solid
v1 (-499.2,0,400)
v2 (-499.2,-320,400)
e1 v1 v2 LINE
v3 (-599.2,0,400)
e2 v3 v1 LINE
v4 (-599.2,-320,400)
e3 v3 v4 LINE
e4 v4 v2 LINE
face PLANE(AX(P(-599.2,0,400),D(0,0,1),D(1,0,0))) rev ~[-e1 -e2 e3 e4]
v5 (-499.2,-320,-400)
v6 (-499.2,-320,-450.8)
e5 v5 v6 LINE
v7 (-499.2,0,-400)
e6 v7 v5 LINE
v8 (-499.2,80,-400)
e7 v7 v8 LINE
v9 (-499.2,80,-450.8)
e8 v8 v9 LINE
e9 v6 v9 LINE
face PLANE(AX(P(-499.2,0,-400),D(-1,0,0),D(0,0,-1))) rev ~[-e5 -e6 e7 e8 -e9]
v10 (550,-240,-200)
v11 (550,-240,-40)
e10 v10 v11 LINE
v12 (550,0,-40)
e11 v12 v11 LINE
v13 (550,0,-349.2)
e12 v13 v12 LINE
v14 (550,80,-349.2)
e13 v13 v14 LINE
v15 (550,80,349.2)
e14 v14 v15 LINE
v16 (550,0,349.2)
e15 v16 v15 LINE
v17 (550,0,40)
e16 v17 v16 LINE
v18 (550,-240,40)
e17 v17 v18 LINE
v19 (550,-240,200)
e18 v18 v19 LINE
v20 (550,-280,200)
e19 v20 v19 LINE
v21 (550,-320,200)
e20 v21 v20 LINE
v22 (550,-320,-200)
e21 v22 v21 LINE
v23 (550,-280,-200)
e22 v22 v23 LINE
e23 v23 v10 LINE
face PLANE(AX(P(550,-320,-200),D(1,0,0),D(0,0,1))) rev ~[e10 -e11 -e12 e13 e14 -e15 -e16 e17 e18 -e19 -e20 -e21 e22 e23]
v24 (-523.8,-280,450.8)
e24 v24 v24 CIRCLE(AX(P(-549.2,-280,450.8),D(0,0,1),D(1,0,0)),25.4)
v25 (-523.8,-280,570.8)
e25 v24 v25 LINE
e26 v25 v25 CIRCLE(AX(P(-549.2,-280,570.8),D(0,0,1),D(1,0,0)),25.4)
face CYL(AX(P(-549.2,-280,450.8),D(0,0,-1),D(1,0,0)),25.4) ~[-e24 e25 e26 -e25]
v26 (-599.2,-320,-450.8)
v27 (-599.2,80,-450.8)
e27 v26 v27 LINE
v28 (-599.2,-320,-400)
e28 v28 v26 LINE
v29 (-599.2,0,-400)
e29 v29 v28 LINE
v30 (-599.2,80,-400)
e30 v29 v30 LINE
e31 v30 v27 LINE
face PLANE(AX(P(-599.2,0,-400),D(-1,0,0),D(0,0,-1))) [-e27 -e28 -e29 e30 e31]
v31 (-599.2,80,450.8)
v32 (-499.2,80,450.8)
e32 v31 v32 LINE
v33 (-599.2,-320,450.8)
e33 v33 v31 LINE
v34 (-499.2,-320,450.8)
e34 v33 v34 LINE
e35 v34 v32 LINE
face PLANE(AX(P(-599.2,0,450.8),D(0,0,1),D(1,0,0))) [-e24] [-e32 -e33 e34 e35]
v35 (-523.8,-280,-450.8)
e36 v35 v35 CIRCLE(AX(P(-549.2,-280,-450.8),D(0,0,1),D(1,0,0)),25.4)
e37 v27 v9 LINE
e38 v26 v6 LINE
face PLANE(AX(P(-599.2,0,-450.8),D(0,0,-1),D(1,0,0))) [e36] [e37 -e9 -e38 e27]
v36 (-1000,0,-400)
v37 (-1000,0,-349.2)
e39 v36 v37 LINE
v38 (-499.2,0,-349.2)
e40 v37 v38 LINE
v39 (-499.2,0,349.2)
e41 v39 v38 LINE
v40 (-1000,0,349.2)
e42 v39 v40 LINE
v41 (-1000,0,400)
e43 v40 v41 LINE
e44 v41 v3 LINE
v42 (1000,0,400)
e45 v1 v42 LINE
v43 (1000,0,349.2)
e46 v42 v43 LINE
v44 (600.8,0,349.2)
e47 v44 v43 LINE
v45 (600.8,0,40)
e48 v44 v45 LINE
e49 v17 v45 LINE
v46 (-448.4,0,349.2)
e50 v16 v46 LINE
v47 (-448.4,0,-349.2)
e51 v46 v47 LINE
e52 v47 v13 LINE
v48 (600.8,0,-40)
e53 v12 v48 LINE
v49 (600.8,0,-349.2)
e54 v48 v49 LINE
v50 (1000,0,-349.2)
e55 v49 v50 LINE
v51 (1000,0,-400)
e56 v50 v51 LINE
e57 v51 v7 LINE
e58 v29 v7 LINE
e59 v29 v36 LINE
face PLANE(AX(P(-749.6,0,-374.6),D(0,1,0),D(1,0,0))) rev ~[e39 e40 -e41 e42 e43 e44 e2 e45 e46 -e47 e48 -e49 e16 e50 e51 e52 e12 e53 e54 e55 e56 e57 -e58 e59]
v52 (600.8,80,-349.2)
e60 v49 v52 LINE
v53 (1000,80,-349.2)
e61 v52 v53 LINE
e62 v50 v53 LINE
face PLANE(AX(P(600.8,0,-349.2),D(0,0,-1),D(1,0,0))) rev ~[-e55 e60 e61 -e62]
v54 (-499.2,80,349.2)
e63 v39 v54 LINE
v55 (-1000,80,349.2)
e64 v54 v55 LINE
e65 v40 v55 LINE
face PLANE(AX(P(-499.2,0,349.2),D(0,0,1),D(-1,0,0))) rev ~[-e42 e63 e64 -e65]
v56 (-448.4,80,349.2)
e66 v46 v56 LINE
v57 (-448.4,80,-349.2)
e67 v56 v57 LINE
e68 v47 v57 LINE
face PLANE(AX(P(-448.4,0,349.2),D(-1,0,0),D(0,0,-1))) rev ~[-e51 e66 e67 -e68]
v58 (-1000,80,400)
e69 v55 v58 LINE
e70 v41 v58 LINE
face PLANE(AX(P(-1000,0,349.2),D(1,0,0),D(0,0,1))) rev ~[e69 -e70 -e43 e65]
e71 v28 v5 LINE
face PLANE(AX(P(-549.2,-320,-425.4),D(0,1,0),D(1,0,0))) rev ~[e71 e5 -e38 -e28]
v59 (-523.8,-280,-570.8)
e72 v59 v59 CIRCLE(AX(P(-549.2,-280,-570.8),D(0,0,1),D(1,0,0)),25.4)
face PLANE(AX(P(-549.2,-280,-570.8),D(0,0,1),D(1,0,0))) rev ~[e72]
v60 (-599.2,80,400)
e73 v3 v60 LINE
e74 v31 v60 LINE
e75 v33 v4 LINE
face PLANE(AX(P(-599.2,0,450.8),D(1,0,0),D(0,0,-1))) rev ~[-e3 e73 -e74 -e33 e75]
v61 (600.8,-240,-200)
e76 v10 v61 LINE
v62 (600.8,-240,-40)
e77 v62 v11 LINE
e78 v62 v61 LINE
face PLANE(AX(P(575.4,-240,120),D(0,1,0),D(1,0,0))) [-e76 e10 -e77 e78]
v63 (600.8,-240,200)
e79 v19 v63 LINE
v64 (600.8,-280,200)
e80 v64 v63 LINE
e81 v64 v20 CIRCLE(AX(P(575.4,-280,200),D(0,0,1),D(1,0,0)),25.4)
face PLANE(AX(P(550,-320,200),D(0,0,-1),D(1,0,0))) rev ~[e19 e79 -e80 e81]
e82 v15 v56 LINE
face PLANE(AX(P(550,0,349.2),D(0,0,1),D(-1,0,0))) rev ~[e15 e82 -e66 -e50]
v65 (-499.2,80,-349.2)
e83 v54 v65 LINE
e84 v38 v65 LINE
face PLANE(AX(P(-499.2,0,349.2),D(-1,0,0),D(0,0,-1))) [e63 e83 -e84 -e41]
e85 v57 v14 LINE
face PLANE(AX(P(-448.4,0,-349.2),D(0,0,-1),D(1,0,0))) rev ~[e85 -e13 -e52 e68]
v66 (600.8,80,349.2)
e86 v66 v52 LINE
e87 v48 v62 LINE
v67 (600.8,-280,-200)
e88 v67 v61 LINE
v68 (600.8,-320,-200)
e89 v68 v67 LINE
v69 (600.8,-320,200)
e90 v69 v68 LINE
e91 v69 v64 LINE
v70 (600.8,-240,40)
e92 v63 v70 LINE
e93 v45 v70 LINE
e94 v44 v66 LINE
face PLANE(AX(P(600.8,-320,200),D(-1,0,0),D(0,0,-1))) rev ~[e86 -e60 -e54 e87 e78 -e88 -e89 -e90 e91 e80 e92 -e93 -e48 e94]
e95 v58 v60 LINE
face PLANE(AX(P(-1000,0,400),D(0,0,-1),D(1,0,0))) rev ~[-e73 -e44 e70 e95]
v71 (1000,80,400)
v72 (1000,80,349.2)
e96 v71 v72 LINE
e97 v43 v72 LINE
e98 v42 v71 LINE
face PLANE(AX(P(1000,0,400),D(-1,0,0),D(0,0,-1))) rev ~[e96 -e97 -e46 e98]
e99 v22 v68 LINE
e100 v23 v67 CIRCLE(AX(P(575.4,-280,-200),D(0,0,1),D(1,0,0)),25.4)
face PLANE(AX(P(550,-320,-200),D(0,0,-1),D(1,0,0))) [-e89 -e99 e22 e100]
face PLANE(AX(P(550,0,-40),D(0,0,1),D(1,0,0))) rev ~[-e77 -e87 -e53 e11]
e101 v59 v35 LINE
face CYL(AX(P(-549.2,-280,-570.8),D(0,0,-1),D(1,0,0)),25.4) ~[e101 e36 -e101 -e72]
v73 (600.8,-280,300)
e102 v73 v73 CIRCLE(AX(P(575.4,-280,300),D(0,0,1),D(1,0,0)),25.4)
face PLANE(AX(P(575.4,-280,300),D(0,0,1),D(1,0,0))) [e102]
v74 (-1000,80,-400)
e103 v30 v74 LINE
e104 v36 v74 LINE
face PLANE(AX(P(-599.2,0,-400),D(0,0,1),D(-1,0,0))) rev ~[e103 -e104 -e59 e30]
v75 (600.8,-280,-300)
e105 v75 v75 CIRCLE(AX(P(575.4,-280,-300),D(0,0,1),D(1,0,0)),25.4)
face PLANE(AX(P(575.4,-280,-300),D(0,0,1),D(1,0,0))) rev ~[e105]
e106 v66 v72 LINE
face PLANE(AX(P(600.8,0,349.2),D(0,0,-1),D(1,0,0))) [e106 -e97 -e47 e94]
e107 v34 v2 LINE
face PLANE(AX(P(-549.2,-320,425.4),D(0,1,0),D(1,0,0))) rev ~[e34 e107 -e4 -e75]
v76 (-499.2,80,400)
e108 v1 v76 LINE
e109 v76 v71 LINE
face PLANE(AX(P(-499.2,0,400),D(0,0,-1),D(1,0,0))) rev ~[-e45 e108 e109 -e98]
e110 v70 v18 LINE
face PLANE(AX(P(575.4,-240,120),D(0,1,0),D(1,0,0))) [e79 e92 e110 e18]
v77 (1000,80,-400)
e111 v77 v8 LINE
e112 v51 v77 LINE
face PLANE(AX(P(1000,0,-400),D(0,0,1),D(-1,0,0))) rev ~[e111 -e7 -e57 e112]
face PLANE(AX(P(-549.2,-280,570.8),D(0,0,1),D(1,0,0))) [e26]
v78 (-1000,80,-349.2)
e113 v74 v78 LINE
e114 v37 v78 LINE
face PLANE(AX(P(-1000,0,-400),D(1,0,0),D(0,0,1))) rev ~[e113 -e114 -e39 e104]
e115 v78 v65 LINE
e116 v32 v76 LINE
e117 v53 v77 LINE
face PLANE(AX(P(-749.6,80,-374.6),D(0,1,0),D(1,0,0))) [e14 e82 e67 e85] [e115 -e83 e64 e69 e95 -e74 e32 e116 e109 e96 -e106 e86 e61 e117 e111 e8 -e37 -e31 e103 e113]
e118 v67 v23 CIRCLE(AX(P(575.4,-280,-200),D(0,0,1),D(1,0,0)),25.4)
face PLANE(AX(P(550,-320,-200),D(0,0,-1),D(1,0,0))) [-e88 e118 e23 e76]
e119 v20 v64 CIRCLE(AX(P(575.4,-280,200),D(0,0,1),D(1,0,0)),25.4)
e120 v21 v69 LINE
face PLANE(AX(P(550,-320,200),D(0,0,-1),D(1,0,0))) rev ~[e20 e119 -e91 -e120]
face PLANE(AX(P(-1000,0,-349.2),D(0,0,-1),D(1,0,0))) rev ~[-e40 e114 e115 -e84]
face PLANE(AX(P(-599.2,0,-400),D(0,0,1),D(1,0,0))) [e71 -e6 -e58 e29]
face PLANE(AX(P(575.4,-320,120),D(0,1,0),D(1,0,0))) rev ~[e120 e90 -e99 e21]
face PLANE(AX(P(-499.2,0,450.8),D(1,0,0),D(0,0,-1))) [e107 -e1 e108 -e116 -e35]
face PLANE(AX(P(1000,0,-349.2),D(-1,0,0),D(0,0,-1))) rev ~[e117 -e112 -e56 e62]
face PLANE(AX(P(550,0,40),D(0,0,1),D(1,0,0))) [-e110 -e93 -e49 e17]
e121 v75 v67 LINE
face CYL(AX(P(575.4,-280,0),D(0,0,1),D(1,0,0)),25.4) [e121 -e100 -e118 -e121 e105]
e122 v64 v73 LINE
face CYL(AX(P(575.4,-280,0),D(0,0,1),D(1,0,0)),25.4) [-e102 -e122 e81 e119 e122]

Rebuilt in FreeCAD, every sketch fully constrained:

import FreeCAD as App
import Part
import Sketcher

V = App.Vector
Q = App.Units.Quantity


def add_polygon(sketch, points):
    """Adds a closed chain of lines whose ends are joined by coincident constraints."""
    first, n = sketch.GeometryCount, len(points)
    for a, b in zip(points, points[1:] + points[:1]):
        sketch.addGeometry(Part.LineSegment(App.Vector(*a, 0), App.Vector(*b, 0)), False)
    for i in range(n):
        sketch.addConstraint(Sketcher.Constraint("Coincident", first + i, 2, first + (i + 1) % n, 1))

doc = App.newDocument("Part")
body = doc.addObject("PartDesign::Body", "Body")

sketch1 = body.newObject("Sketcher::SketchObject", "Sketch")
sketch1.AttachmentSupport = (doc.getObject("XZ_Plane"), [""])
sketch1.MapMode = "FlatFace"
add_polygon(sketch1, [(-1000, -400), (-1000, -349.2), (-499.2, -349.2), (-499.2, 349.2), (-1000, 349.2), (-1000, 400), (-599.2, 400), (-599.2, 450.8), (-499.2, 450.8), (-499.2, 400), (1000, 400), (1000, 349.2), (600.8, 349.2), (600.8, -349.2), (1000, -349.2), (1000, -400), (-499.2, -400), (-499.2, -450.8), (-599.2, -450.8), (-599.2, -400)])
add_polygon(sketch1, [(-448.4, -349.2), (550, -349.2), (550, 349.2), (-448.4, 349.2)])
sketch1.addConstraint(Sketcher.Constraint("Vertical", 0))
sketch1.addConstraint(Sketcher.Constraint("Horizontal", 1))
sketch1.addConstraint(Sketcher.Constraint("Vertical", 2))
sketch1.addConstraint(Sketcher.Constraint("Horizontal", 3))
sketch1.addConstraint(Sketcher.Constraint("Vertical", 4))
sketch1.addConstraint(Sketcher.Constraint("Horizontal", 5))
sketch1.addConstraint(Sketcher.Constraint("Vertical", 6))
sketch1.addConstraint(Sketcher.Constraint("Horizontal", 7))
sketch1.addConstraint(Sketcher.Constraint("Vertical", 8))
sketch1.addConstraint(Sketcher.Constraint("Horizontal", 9))
sketch1.addConstraint(Sketcher.Constraint("Vertical", 10))
sketch1.addConstraint(Sketcher.Constraint("Horizontal", 11))
sketch1.addConstraint(Sketcher.Constraint("Vertical", 12))
sketch1.addConstraint(Sketcher.Constraint("Horizontal", 13))
sketch1.addConstraint(Sketcher.Constraint("Vertical", 14))
sketch1.addConstraint(Sketcher.Constraint("Horizontal", 15))
sketch1.addConstraint(Sketcher.Constraint("Vertical", 16))
sketch1.addConstraint(Sketcher.Constraint("Horizontal", 17))
sketch1.addConstraint(Sketcher.Constraint("Vertical", 18))
sketch1.addConstraint(Sketcher.Constraint("Horizontal", 19))
sketch1.addConstraint(Sketcher.Constraint("Horizontal", 20))
sketch1.addConstraint(Sketcher.Constraint("Vertical", 21))
sketch1.addConstraint(Sketcher.Constraint("Horizontal", 22))
sketch1.addConstraint(Sketcher.Constraint("Vertical", 23))
sketch1.addConstraint(Sketcher.Constraint("Symmetric", 0, 2, 10, 2, -1, 1))
sketch1.addConstraint(Sketcher.Constraint("Symmetric", 3, 2, 13, 2, -1, 1))
sketch1.addConstraint(Sketcher.Constraint("Symmetric", 4, 2, 9, 2, -2))
sketch1.addConstraint(Sketcher.Constraint("Symmetric", 8, 2, 15, 2, -1))
sketch1.addConstraint(Sketcher.Constraint("Symmetric", 6, 2, 17, 2, -1))
sketch1.addConstraint(Sketcher.Constraint("Horizontal", 3, 2, 10, 2))
sketch1.addConstraint(Sketcher.Constraint("Horizontal", 15, 2, 18, 2))
sketch1.addConstraint(Sketcher.Constraint("Horizontal", 13, 2, 20, 2))
sketch1.addConstraint(Sketcher.Constraint("Horizontal", 11, 2, 21, 2))
sketch1.addConstraint(Sketcher.Constraint("Vertical", 2, 2, 7, 2))
sketch1.addConstraint(Sketcher.Constraint("Equal", 4, 6))
sketch1.addConstraint(Sketcher.Constraint("DistanceX", 7, 1, 7, 2, Q("100 mm")))
sketch1.addConstraint(Sketcher.Constraint("DistanceX", 1, 1, 1, 2, Q("500.8 mm")))
sketch1.addConstraint(Sketcher.Constraint("DistanceX", 9, 1, 9, 2, Q("1499.2 mm")))
sketch1.addConstraint(Sketcher.Constraint("DistanceX", 11, 2, 11, 1, Q("399.2 mm")))
sketch1.addConstraint(Sketcher.Constraint("DistanceX", 20, 1, 20, 2, Q("998.4 mm")))
sketch1.addConstraint(Sketcher.Constraint("DistanceY", 0, 1, 0, 2, Q("50.8 mm")))
sketch1.addConstraint(Sketcher.Constraint("DistanceY", 2, 1, 2, 2, Q("698.4 mm")))
sketch1.addConstraint(Sketcher.Constraint("DistanceX", -1, 1, 20, 2, Q("550 mm")))
pad1 = body.newObject("PartDesign::Pad", "Pad")
pad1.Profile = sketch1
pad1.Length = 80
pad1.Reversed = True

sketch2 = body.newObject("Sketcher::SketchObject", "Sketch001")
sketch2.AttachmentSupport = (doc.getObject("XZ_Plane"), [""])
sketch2.MapMode = "FlatFace"
add_polygon(sketch2, [(-599.2, 400), (-599.2, 450.8), (-499.2, 450.8), (-499.2, 400)])
add_polygon(sketch2, [(-599.2, -450.8), (-599.2, -400), (-499.2, -400), (-499.2, -450.8)])
add_polygon(sketch2, [(550, -40), (550, 40), (600.8, 40), (600.8, -40)])
sketch2.addConstraint(Sketcher.Constraint("Vertical", 0))
sketch2.addConstraint(Sketcher.Constraint("Horizontal", 1))
sketch2.addConstraint(Sketcher.Constraint("Vertical", 2))
sketch2.addConstraint(Sketcher.Constraint("Horizontal", 3))
sketch2.addConstraint(Sketcher.Constraint("Vertical", 4))
sketch2.addConstraint(Sketcher.Constraint("Horizontal", 5))
sketch2.addConstraint(Sketcher.Constraint("Vertical", 6))
sketch2.addConstraint(Sketcher.Constraint("Horizontal", 7))
sketch2.addConstraint(Sketcher.Constraint("Vertical", 8))
sketch2.addConstraint(Sketcher.Constraint("Horizontal", 9))
sketch2.addConstraint(Sketcher.Constraint("Vertical", 10))
sketch2.addConstraint(Sketcher.Constraint("Horizontal", 11))
sketch2.addConstraint(Sketcher.Constraint("Symmetric", 3, 2, 4, 2, -1))
sketch2.addConstraint(Sketcher.Constraint("Symmetric", 1, 2, 6, 2, -1))
sketch2.addConstraint(Sketcher.Constraint("Equal", 11, 0))
sketch2.addConstraint(Sketcher.Constraint("DistanceX", 1, 1, 1, 2, Q("100 mm")))
sketch2.addConstraint(Sketcher.Constraint("DistanceY", 8, 1, 8, 2, Q("80 mm")))
sketch2.addConstraint(Sketcher.Constraint("DistanceX", 9, 1, 9, 2, Q("50.8 mm")))
sketch2.addConstraint(Sketcher.Constraint("DistanceY", -1, 1, 2, 2, Q("400 mm")))
sketch2.addConstraint(Sketcher.Constraint("DistanceX", -1, 1, 8, 2, Q("550 mm")))
sketch2.addConstraint(Sketcher.Constraint("DistanceY", -1, 1, 8, 2, Q("40 mm")))
sketch2.addConstraint(Sketcher.Constraint("DistanceX", 2, 2, 9, 2, Q("1100 mm")))
pad2 = body.newObject("PartDesign::Pad", "Pad001")
pad2.Profile = sketch2
pad2.Length = 320

sketch3 = body.newObject("Sketcher::SketchObject", "Sketch002")
sketch3.AttachmentSupport = (doc.getObject("XZ_Plane"), [""])
sketch3.MapMode = "FlatFace"
sketch3.AttachmentOffset = App.Placement(V(0, 0, 320), App.Rotation())
add_polygon(sketch3, [(550, 200), (600.8, 200), (600.8, -200), (550, -200)])
sketch3.addConstraint(Sketcher.Constraint("Horizontal", 0))
sketch3.addConstraint(Sketcher.Constraint("Vertical", 1))
sketch3.addConstraint(Sketcher.Constraint("Horizontal", 2))
sketch3.addConstraint(Sketcher.Constraint("Vertical", 3))
sketch3.addConstraint(Sketcher.Constraint("DistanceY", 1, 2, 1, 1, Q("400 mm")))
sketch3.addConstraint(Sketcher.Constraint("DistanceX", 0, 1, 0, 2, Q("50.8 mm")))
sketch3.addConstraint(Sketcher.Constraint("DistanceY", -1, 1, 0, 2, Q("200 mm")))
sketch3.addConstraint(Sketcher.Constraint("DistanceX", -1, 1, 2, 2, Q("550 mm")))
pad3 = body.newObject("PartDesign::Pad", "Pad002")
pad3.Profile = sketch3
pad3.Length = 80
pad3.Reversed = True

sketch4 = body.newObject("Sketcher::SketchObject", "Sketch003")
sketch4.AttachmentSupport = (doc.getObject("XY_Plane"), [""])
sketch4.MapMode = "FlatFace"
sketch4.AttachmentOffset = App.Placement(V(0, 0, 450.8), App.Rotation())
sketch4.addGeometry(Part.Circle(V(-549.2, -280, 0), V(0, 0, 1), 25.4), False)
sketch4.addConstraint(Sketcher.Constraint("Diameter", 0, Q("50.8 mm")))
sketch4.addConstraint(Sketcher.Constraint("DistanceY", 0, 3, -1, 1, Q("280 mm")))
sketch4.addConstraint(Sketcher.Constraint("DistanceX", 0, 3, -1, 1, Q("549.2 mm")))
pad4 = body.newObject("PartDesign::Pad", "Pad003")
pad4.Profile = sketch4
pad4.Length = 120

sketch5 = body.newObject("Sketcher::SketchObject", "Sketch004")
sketch5.AttachmentSupport = (doc.getObject("XY_Plane"), [""])
sketch5.MapMode = "FlatFace"
sketch5.AttachmentOffset = App.Placement(V(0, 0, -570.8), App.Rotation())
sketch5.addGeometry(Part.Circle(V(-549.2, -280, 0), V(0, 0, 1), 25.4), False)
sketch5.addConstraint(Sketcher.Constraint("Diameter", 0, Q("50.8 mm")))
sketch5.addConstraint(Sketcher.Constraint("DistanceY", 0, 3, -1, 1, Q("280 mm")))
sketch5.addConstraint(Sketcher.Constraint("DistanceX", 0, 3, -1, 1, Q("549.2 mm")))
pad5 = body.newObject("PartDesign::Pad", "Pad004")
pad5.Profile = sketch5
pad5.Length = 120

sketch6 = body.newObject("Sketcher::SketchObject", "Sketch005")
sketch6.AttachmentSupport = (doc.getObject("XY_Plane"), [""])
sketch6.MapMode = "FlatFace"
sketch6.addGeometry(Part.Circle(V(575.4, -280, 0), V(0, 0, 1), 25.4), False)
sketch6.addConstraint(Sketcher.Constraint("Diameter", 0, Q("50.8 mm")))
sketch6.addConstraint(Sketcher.Constraint("DistanceY", 0, 3, -1, 1, Q("280 mm")))
sketch6.addConstraint(Sketcher.Constraint("DistanceX", -1, 1, 0, 3, Q("575.4 mm")))
pad6 = body.newObject("PartDesign::Pad", "Pad005")
pad6.Profile = sketch6
pad6.Length = 600
pad6.Midplane = True

doc.recompute()
